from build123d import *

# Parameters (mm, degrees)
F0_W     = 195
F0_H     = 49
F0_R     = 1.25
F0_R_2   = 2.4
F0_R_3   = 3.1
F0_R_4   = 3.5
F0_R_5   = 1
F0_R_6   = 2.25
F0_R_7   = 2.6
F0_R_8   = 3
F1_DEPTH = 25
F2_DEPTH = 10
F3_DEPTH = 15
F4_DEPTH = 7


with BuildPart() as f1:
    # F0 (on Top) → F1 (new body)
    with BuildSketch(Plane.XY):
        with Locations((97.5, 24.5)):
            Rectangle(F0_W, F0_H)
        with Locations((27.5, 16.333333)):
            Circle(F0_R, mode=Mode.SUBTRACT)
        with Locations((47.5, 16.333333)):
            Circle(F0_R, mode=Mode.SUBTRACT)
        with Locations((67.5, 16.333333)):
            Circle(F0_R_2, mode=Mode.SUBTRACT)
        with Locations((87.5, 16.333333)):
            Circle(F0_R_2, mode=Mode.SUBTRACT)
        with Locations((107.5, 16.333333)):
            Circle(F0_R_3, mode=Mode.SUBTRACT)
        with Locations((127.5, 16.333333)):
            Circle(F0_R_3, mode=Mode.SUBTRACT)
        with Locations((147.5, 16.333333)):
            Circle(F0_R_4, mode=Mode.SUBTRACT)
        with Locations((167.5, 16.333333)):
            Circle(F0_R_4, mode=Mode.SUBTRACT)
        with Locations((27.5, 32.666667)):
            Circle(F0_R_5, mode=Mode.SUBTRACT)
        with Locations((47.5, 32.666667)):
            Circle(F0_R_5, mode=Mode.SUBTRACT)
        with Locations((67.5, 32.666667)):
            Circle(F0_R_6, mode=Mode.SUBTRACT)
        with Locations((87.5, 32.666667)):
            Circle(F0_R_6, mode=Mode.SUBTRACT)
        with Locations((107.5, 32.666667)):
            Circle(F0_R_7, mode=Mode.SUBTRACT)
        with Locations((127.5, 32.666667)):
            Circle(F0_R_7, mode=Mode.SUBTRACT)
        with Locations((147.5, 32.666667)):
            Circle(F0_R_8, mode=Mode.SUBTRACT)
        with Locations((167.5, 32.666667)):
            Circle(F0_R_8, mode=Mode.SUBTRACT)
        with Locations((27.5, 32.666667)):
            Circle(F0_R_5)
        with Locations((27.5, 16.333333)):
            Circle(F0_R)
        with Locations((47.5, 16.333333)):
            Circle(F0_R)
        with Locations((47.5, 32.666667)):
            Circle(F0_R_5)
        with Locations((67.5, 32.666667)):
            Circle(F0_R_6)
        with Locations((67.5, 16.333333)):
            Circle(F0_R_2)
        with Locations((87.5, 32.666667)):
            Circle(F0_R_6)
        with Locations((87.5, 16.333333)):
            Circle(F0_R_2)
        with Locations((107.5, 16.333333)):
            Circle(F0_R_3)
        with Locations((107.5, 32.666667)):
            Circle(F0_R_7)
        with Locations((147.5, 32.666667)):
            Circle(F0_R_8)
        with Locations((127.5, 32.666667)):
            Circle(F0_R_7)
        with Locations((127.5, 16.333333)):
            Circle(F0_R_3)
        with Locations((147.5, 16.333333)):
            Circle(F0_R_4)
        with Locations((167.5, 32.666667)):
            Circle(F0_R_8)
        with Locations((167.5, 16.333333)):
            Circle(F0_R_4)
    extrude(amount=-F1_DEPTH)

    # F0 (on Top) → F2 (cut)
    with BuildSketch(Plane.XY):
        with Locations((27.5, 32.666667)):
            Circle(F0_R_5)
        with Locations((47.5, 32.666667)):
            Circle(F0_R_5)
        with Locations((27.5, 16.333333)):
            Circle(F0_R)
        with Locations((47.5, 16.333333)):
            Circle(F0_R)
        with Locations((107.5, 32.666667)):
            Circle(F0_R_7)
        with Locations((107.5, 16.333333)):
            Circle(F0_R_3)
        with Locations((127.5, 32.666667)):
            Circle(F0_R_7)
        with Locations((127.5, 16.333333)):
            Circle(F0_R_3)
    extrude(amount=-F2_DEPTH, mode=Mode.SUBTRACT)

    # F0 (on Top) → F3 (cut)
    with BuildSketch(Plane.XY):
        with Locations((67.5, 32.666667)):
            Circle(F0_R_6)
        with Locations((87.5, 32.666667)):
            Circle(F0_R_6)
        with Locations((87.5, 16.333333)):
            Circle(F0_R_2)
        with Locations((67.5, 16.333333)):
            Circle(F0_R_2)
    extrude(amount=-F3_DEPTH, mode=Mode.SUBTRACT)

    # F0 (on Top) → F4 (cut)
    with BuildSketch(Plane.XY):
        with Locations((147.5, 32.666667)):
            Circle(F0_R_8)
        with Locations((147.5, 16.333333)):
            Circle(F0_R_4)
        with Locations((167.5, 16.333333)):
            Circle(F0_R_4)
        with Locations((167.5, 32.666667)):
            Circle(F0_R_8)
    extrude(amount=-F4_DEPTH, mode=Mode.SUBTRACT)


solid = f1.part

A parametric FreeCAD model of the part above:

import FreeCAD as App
import Part
import Sketcher

V = App.Vector
Q = App.Units.Quantity

doc = App.newDocument("Part")
body = doc.addObject("PartDesign::Body", "Body")

# Sketch on XY plane
sketch1 = body.newObject("Sketcher::SketchObject", "Sketch")
sketch1.AttachmentSupport = (doc.getObject("XY_Plane"), [""])
sketch1.MapMode = "FlatFace"
sketch1.addGeometry([
    Part.LineSegment(V(0, 49, 0), V(0, 0, 0)),
    Part.LineSegment(V(0, 0, 0), V(195, 0, 0)),
    Part.LineSegment(V(195, 0, 0), V(195, 49, 0)),
    Part.LineSegment(V(195, 49, 0), V(0, 49, 0)),
], False)
sketch1.addConstraint([
    Sketcher.Constraint("Coincident", 0, 2, 1, 1),
    Sketcher.Constraint("Coincident", 1, 2, 2, 1),
    Sketcher.Constraint("Coincident", 2, 2, 3, 1),
    Sketcher.Constraint("Coincident", 3, 2, 0, 1),
    Sketcher.Constraint("Vertical", 0),
    Sketcher.Constraint("Horizontal", 1),
    Sketcher.Constraint("Vertical", 2),
    Sketcher.Constraint("Horizontal", 3),
    Sketcher.Constraint("Coincident", 0, 2, -1, 1),
    Sketcher.Constraint("DistanceX", 1, 1, 1, 2, Q("195 mm")),
    Sketcher.Constraint("DistanceY", 0, 2, 0, 1, Q("49 mm")),
])
pad1 = body.newObject("PartDesign::Pad", "Pad")
pad1.Profile = sketch1
pad1.Length = 25
pad1.Reversed = True

# Sketch on XY plane
sketch2 = body.newObject("Sketcher::SketchObject", "Sketch001")
sketch2.AttachmentSupport = (doc.getObject("XY_Plane"), [""])
sketch2.MapMode = "FlatFace"
sketch2.addGeometry([
    Part.Circle(V(27.5, 32.7, 0), V(0, 0, 1), 1),  # 0
    Part.Circle(V(47.5, 32.7, 0), V(0, 0, 1), 1),  # 1
    Part.Circle(V(27.5, 16.3, 0), V(0, 0, 1), 1.2),  # 2
    Part.Circle(V(47.5, 16.3, 0), V(0, 0, 1), 1.2),  # 3
    Part.Circle(V(107.5, 32.7, 0), V(0, 0, 1), 2.6),  # 4
    Part.Circle(V(107.5, 16.3, 0), V(0, 0, 1), 3.1),  # 5
    Part.Circle(V(127.5, 32.7, 0), V(0, 0, 1), 2.6),  # 6
    Part.Circle(V(127.5, 16.3, 0), V(0, 0, 1), 3.1),  # 7
], False)
sketch2.addConstraint([
    Sketcher.Constraint("Equal", 0, 1),
    Sketcher.Constraint("Equal", 2, 3),
    Sketcher.Constraint("Equal", 4, 6),
    Sketcher.Constraint("Equal", 5, 7),
    Sketcher.Constraint("Horizontal", 0, 3, 1, 3),
    Sketcher.Constraint("Horizontal", 2, 3, 3, 3),
    Sketcher.Constraint("Horizontal", 1, 3, 4, 3),
    Sketcher.Constraint("Horizontal", 3, 3, 5, 3),
    Sketcher.Constraint("Horizontal", 4, 3, 6, 3),
    Sketcher.Constraint("Horizontal", 5, 3, 7, 3),
    Sketcher.Constraint("Vertical", 0, 3, 2, 3),
    Sketcher.Constraint("Vertical", 1, 3, 3, 3),
    Sketcher.Constraint("Vertical", 4, 3, 5, 3),
    Sketcher.Constraint("Vertical", 6, 3, 7, 3),
    Sketcher.Constraint("Diameter", 0, Q("2 mm")),
    Sketcher.Constraint("Diameter", 2, Q("2.5 mm")),
    Sketcher.Constraint("Diameter", 4, Q("5.2 mm")),
    Sketcher.Constraint("Diameter", 5, Q("6.2 mm")),
    Sketcher.Constraint("DistanceX", 0, 3, 1, 3, Q("20 mm")),
    Sketcher.Constraint("DistanceX", 1, 3, 4, 3, Q("60 mm")),
    Sketcher.Constraint("DistanceX", 4, 3, 6, 3, Q("20 mm")),
    Sketcher.Constraint("DistanceX", -1, 1, 0, 3, Q("27.5 mm")),
    Sketcher.Constraint("DistanceY", -1, 1, 0, 3, Q("32.666667 mm")),
    Sketcher.Constraint("DistanceY", -1, 1, 2, 3, Q("16.333333 mm")),
])
pocket1 = body.newObject("PartDesign::Pocket", "Pocket")
pocket1.Profile = sketch2
pocket1.Length = 10

# Sketch on XY plane
sketch3 = body.newObject("Sketcher::SketchObject", "Sketch002")
sketch3.AttachmentSupport = (doc.getObject("XY_Plane"), [""])
sketch3.MapMode = "FlatFace"
sketch3.addGeometry([
    Part.Circle(V(67.5, 32.7, 0), V(0, 0, 1), 2.2),
    Part.Circle(V(87.5, 32.7, 0), V(0, 0, 1), 2.2),
    Part.Circle(V(87.5, 16.3, 0), V(0, 0, 1), 2.4),
    Part.Circle(V(67.5, 16.3, 0), V(0, 0, 1), 2.4),
], False)
sketch3.addConstraint([
    Sketcher.Constraint("Equal", 0, 1),
    Sketcher.Constraint("Equal", 2, 3),
    Sketcher.Constraint("Horizontal", 0, 3, 1, 3),
    Sketcher.Constraint("Horizontal", 2, 3, 3, 3),
    Sketcher.Constraint("Vertical", 1, 3, 2, 3),
    Sketcher.Constraint("Vertical", 0, 3, 3, 3),
    Sketcher.Constraint("Diameter", 0, Q("4.5 mm")),
    Sketcher.Constraint("Diameter", 2, Q("4.8 mm")),
    Sketcher.Constraint("DistanceX", 0, 3, 1, 3, Q("20 mm")),
    Sketcher.Constraint("DistanceX", -1, 1, 0, 3, Q("67.5 mm")),
    Sketcher.Constraint("DistanceY", -1, 1, 0, 3, Q("32.666667 mm")),
    Sketcher.Constraint("DistanceY", -1, 1, 2, 3, Q("16.333333 mm")),
])
pocket2 = body.newObject("PartDesign::Pocket", "Pocket001")
pocket2.Profile = sketch3
pocket2.Length = 15

# Sketch on XY plane
sketch4 = body.newObject("Sketcher::SketchObject", "Sketch003")
sketch4.AttachmentSupport = (doc.getObject("XY_Plane"), [""])
sketch4.MapMode = "FlatFace"
sketch4.addGeometry([
    Part.Circle(V(147.5, 32.7, 0), V(0, 0, 1), 3),
    Part.Circle(V(147.5, 16.3, 0), V(0, 0, 1), 3.5),
    Part.Circle(V(167.5, 16.3, 0), V(0, 0, 1), 3.5),
    Part.Circle(V(167.5, 32.7, 0), V(0, 0, 1), 3),
], False)
sketch4.addConstraint([
    Sketcher.Constraint("Equal", 1, 2),
    Sketcher.Constraint("Equal", 0, 3),
    Sketcher.Constraint("Horizontal", 1, 3, 2, 3),
    Sketcher.Constraint("Horizontal", 0, 3, 3, 3),
    Sketcher.Constraint("Vertical", 0, 3, 1, 3),
    Sketcher.Constraint("Vertical", 2, 3, 3, 3),
    Sketcher.Constraint("Diameter", 0, Q("6 mm")),
    Sketcher.Constraint("Diameter", 1, Q("7 mm")),
    Sketcher.Constraint("DistanceX", 1, 3, 2, 3, Q("20 mm")),
    Sketcher.Constraint("DistanceX", -1, 1, 0, 3, Q("147.5 mm")),
    Sketcher.Constraint("DistanceY", -1, 1, 0, 3, Q("32.666667 mm")),
    Sketcher.Constraint("DistanceY", -1, 1, 1, 3, Q("16.333333 mm")),
])
pocket3 = body.newObject("PartDesign::Pocket", "Pocket002")
pocket3.Profile = sketch4
pocket3.Length = 7

doc.recompute()
